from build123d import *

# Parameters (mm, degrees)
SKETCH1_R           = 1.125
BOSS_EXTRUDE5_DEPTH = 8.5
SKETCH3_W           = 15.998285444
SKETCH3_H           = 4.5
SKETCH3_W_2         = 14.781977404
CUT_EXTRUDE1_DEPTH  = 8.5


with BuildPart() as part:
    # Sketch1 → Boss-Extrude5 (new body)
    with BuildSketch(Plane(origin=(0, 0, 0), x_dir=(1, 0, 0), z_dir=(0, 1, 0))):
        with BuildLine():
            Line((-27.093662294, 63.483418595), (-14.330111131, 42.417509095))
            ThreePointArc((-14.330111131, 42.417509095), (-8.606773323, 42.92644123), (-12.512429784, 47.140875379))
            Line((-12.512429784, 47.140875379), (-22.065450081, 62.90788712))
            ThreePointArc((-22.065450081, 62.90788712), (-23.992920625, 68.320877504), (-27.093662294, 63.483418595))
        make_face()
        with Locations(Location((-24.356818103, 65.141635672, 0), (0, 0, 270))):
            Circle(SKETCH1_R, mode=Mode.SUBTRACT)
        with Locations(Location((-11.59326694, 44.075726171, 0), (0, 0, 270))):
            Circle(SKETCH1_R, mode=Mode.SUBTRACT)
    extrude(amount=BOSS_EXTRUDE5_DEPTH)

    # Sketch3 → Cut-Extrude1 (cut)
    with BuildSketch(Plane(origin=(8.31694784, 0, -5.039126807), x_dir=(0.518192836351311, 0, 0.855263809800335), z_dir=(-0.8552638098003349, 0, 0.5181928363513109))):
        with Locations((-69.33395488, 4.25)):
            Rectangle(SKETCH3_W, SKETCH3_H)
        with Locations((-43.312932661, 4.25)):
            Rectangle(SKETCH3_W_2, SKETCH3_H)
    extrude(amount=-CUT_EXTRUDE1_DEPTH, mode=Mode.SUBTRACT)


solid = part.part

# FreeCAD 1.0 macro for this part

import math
import FreeCAD as App
import Part
import Sketcher
from FreeCAD import Vector
Q = App.Units.Quantity


def add_polygon(sketch, points):
    """Adds a closed chain of lines whose ends are joined by coincident constraints."""
    first, n = sketch.GeometryCount, len(points)
    for a, b in zip(points, points[1:] + points[:1]):
        sketch.addGeometry(Part.LineSegment(App.Vector(*a, 0), App.Vector(*b, 0)), False)
    for i in range(n):
        sketch.addConstraint(Sketcher.Constraint("Coincident", first + i, 2, first + (i + 1) % n, 1))

doc = App.newDocument("Part")
body = doc.addObject("PartDesign::Body", "Body")

# Sketch on XZ plane
sketch1 = body.newObject("Sketcher::SketchObject", "Sketch")
sketch1.AttachmentSupport = (doc.getObject("XZ_Plane"), [""])
sketch1.MapMode = "FlatFace"
sketch1.addGeometry([
    Part.LineSegment(Vector(-27.1, -63.5, 0), Vector(-14.3, -42.4, 0)),  # 0
    Part.ArcOfCircle(Part.Circle(Vector(-11.6, -44.1, 0), Vector(0, 0, 1), 3.2), math.radians(-107), math.radians(149)),  # 1
    Part.LineSegment(Vector(-12.5, -47.1, 0), Vector(-22.1, -62.9, 0)),  # 2
    Part.ArcOfCircle(Part.Circle(Vector(-24.4, -65.1, 0), Vector(0, 0, 1), 3.2), math.radians(149), math.radians(404)),  # 3
    Part.Circle(Vector(-11.6, -44.1, 0), Vector(0, 0, 1), 1.1),  # 4
    Part.Circle(Vector(-24.4, -65.1, 0), Vector(0, 0, 1), 1.1),  # 5
], False)
sketch1.addConstraint([
    Sketcher.Constraint("Tangent", 0, 2, 1, 2),
    Sketcher.Constraint("Coincident", 1, 1, 2, 1),
    Sketcher.Constraint("Coincident", 2, 2, 3, 2),
    Sketcher.Constraint("Tangent", 3, 1, 0, 1),
    Sketcher.Constraint("Coincident", 4, 3, 1, 3),
    Sketcher.Constraint("Coincident", 5, 3, 3, 3),
    Sketcher.Constraint("Equal", 1, 3),
    Sketcher.Constraint("Equal", 4, 5),
    Sketcher.Constraint("Parallel", 0, 2),
    Sketcher.Constraint("Radius", 1, Q("3.2 mm")),
    Sketcher.Constraint("Diameter", 4, Q("2.25 mm")),
    Sketcher.Constraint("Distance", 0, Q("24.630891 mm")),
    Sketcher.Constraint("Distance", 2, Q("18.435261 mm")),
    Sketcher.Constraint("DistanceX", 3, 3, -1, 1, Q("24.356818 mm")),
    Sketcher.Constraint("DistanceX", 0, 2, -1, 1, Q("14.330111 mm")),
    Sketcher.Constraint("DistanceY", 0, 2, -1, 1, Q("42.417509 mm")),
])
pad1 = body.newObject("PartDesign::Pad", "Pad")
pad1.Profile = sketch1
pad1.Length = 8.5
pad1.Reversed = True

# Sketch on an angled plane
sketch2 = body.newObject("Sketcher::SketchObject", "Sketch001")
sketch2.Placement = App.Placement(Vector(8.316948, 0, -5.039127), App.Rotation(Vector(0.518192836, 0, 0.85526381), Vector(0, 1, 0), Vector(-0.85526381, 0, 0.518192836), "ZXY"))
add_polygon(sketch2, [(-77.3, 6.5), (-77.3, 2), (-61.3, 2), (-61.3, 6.5)])  # lines 0-3
add_polygon(sketch2, [(-50.7, 6.5), (-50.7, 2), (-35.9, 2), (-35.9, 6.5)])  # lines 4-7
sketch2.addConstraint([
    Sketcher.Constraint("Vertical", 0),
    Sketcher.Constraint("Horizontal", 1),
    Sketcher.Constraint("Vertical", 2),
    Sketcher.Constraint("Horizontal", 3),
    Sketcher.Constraint("Vertical", 4),
    Sketcher.Constraint("Horizontal", 5),
    Sketcher.Constraint("Vertical", 6),
    Sketcher.Constraint("Horizontal", 7),
    Sketcher.Constraint("Horizontal", 1, 2, 4, 2),
    Sketcher.Constraint("Horizontal", 3, 2, 6, 2),
    Sketcher.Constraint("DistanceY", 0, 2, 0, 1, Q("4.5 mm")),
    Sketcher.Constraint("DistanceY", -1, 1, 0, 2, Q("2 mm")),
    Sketcher.Constraint("DistanceX", 1, 1, 1, 2, Q("15.998285 mm")),
    Sketcher.Constraint("DistanceX", 5, 1, 5, 2, Q("14.781977 mm")),
    Sketcher.Constraint("DistanceX", 4, 2, -1, 1, Q("50.703921 mm")),
    Sketcher.Constraint("DistanceX", 1, 2, 4, 2, Q("10.630891 mm")),
])
pocket1 = body.newObject("PartDesign::Pocket", "Pocket")
pocket1.Profile = sketch2
pocket1.Length = 8.5

doc.recompute()
